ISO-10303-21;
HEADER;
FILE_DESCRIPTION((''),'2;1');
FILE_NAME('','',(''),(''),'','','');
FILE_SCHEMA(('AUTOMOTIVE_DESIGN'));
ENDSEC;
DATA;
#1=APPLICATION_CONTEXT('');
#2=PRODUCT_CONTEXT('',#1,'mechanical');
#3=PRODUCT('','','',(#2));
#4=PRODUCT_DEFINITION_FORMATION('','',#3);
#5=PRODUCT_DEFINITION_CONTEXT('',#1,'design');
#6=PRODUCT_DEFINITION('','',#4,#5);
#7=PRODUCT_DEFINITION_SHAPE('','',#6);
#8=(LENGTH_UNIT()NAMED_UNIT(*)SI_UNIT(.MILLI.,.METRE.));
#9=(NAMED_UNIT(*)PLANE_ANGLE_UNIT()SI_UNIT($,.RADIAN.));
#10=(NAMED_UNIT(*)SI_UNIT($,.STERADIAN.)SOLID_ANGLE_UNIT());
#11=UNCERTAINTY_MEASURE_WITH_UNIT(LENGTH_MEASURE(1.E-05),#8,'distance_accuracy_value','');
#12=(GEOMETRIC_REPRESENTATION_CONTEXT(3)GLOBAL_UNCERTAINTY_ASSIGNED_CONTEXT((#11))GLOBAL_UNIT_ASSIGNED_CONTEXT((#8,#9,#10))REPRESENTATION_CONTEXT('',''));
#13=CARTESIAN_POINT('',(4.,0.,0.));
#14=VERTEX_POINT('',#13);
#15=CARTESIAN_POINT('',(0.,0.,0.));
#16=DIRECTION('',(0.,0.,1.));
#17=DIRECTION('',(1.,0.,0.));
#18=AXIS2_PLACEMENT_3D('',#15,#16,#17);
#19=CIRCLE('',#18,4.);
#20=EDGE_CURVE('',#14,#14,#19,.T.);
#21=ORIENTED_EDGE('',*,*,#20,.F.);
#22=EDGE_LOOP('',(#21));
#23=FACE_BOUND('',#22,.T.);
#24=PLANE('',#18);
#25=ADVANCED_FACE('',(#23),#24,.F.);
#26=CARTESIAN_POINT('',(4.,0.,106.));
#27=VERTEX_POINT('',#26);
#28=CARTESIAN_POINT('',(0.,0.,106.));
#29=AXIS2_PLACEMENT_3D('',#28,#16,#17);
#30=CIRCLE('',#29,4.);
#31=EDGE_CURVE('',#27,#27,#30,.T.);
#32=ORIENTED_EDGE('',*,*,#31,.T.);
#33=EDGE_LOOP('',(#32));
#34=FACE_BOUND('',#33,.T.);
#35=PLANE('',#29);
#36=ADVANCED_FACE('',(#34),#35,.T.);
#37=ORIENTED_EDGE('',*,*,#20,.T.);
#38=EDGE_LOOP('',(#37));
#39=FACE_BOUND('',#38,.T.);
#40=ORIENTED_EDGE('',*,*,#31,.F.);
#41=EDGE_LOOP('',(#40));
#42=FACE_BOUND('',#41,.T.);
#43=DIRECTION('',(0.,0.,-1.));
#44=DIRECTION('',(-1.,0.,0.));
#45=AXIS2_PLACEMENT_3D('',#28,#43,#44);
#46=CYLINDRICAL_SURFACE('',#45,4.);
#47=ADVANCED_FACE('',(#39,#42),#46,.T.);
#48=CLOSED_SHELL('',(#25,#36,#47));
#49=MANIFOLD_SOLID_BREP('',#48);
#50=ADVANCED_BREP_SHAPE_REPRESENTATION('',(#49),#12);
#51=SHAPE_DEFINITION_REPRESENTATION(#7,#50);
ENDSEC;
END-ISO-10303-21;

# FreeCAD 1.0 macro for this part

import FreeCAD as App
import Part
import Sketcher
from FreeCAD import Vector
Q = App.Units.Quantity

doc = App.newDocument("Part")
body = doc.addObject("PartDesign::Body", "Body")

sketch1 = doc.addObject("Sketcher::SketchObject", "Sketch")
body.addObject(sketch1)
sketch1.AttachmentSupport = (doc.XY_Plane, [""])
sketch1.MapMode = "FlatFace"
sketch1.addGeometry(Part.Circle(Vector(0, 0, 0), Vector(0, 0, 1), 4), False)
sketch1.addConstraint(Sketcher.Constraint("Coincident", 0, 3, -1, 1))
sketch1.addConstraint(Sketcher.Constraint("Diameter", 0, Q("8 mm")))
pad1 = doc.addObject("PartDesign::Pad", "Pad")
body.addObject(pad1)
pad1.Profile = sketch1
pad1.Length = 106

doc.recompute()
